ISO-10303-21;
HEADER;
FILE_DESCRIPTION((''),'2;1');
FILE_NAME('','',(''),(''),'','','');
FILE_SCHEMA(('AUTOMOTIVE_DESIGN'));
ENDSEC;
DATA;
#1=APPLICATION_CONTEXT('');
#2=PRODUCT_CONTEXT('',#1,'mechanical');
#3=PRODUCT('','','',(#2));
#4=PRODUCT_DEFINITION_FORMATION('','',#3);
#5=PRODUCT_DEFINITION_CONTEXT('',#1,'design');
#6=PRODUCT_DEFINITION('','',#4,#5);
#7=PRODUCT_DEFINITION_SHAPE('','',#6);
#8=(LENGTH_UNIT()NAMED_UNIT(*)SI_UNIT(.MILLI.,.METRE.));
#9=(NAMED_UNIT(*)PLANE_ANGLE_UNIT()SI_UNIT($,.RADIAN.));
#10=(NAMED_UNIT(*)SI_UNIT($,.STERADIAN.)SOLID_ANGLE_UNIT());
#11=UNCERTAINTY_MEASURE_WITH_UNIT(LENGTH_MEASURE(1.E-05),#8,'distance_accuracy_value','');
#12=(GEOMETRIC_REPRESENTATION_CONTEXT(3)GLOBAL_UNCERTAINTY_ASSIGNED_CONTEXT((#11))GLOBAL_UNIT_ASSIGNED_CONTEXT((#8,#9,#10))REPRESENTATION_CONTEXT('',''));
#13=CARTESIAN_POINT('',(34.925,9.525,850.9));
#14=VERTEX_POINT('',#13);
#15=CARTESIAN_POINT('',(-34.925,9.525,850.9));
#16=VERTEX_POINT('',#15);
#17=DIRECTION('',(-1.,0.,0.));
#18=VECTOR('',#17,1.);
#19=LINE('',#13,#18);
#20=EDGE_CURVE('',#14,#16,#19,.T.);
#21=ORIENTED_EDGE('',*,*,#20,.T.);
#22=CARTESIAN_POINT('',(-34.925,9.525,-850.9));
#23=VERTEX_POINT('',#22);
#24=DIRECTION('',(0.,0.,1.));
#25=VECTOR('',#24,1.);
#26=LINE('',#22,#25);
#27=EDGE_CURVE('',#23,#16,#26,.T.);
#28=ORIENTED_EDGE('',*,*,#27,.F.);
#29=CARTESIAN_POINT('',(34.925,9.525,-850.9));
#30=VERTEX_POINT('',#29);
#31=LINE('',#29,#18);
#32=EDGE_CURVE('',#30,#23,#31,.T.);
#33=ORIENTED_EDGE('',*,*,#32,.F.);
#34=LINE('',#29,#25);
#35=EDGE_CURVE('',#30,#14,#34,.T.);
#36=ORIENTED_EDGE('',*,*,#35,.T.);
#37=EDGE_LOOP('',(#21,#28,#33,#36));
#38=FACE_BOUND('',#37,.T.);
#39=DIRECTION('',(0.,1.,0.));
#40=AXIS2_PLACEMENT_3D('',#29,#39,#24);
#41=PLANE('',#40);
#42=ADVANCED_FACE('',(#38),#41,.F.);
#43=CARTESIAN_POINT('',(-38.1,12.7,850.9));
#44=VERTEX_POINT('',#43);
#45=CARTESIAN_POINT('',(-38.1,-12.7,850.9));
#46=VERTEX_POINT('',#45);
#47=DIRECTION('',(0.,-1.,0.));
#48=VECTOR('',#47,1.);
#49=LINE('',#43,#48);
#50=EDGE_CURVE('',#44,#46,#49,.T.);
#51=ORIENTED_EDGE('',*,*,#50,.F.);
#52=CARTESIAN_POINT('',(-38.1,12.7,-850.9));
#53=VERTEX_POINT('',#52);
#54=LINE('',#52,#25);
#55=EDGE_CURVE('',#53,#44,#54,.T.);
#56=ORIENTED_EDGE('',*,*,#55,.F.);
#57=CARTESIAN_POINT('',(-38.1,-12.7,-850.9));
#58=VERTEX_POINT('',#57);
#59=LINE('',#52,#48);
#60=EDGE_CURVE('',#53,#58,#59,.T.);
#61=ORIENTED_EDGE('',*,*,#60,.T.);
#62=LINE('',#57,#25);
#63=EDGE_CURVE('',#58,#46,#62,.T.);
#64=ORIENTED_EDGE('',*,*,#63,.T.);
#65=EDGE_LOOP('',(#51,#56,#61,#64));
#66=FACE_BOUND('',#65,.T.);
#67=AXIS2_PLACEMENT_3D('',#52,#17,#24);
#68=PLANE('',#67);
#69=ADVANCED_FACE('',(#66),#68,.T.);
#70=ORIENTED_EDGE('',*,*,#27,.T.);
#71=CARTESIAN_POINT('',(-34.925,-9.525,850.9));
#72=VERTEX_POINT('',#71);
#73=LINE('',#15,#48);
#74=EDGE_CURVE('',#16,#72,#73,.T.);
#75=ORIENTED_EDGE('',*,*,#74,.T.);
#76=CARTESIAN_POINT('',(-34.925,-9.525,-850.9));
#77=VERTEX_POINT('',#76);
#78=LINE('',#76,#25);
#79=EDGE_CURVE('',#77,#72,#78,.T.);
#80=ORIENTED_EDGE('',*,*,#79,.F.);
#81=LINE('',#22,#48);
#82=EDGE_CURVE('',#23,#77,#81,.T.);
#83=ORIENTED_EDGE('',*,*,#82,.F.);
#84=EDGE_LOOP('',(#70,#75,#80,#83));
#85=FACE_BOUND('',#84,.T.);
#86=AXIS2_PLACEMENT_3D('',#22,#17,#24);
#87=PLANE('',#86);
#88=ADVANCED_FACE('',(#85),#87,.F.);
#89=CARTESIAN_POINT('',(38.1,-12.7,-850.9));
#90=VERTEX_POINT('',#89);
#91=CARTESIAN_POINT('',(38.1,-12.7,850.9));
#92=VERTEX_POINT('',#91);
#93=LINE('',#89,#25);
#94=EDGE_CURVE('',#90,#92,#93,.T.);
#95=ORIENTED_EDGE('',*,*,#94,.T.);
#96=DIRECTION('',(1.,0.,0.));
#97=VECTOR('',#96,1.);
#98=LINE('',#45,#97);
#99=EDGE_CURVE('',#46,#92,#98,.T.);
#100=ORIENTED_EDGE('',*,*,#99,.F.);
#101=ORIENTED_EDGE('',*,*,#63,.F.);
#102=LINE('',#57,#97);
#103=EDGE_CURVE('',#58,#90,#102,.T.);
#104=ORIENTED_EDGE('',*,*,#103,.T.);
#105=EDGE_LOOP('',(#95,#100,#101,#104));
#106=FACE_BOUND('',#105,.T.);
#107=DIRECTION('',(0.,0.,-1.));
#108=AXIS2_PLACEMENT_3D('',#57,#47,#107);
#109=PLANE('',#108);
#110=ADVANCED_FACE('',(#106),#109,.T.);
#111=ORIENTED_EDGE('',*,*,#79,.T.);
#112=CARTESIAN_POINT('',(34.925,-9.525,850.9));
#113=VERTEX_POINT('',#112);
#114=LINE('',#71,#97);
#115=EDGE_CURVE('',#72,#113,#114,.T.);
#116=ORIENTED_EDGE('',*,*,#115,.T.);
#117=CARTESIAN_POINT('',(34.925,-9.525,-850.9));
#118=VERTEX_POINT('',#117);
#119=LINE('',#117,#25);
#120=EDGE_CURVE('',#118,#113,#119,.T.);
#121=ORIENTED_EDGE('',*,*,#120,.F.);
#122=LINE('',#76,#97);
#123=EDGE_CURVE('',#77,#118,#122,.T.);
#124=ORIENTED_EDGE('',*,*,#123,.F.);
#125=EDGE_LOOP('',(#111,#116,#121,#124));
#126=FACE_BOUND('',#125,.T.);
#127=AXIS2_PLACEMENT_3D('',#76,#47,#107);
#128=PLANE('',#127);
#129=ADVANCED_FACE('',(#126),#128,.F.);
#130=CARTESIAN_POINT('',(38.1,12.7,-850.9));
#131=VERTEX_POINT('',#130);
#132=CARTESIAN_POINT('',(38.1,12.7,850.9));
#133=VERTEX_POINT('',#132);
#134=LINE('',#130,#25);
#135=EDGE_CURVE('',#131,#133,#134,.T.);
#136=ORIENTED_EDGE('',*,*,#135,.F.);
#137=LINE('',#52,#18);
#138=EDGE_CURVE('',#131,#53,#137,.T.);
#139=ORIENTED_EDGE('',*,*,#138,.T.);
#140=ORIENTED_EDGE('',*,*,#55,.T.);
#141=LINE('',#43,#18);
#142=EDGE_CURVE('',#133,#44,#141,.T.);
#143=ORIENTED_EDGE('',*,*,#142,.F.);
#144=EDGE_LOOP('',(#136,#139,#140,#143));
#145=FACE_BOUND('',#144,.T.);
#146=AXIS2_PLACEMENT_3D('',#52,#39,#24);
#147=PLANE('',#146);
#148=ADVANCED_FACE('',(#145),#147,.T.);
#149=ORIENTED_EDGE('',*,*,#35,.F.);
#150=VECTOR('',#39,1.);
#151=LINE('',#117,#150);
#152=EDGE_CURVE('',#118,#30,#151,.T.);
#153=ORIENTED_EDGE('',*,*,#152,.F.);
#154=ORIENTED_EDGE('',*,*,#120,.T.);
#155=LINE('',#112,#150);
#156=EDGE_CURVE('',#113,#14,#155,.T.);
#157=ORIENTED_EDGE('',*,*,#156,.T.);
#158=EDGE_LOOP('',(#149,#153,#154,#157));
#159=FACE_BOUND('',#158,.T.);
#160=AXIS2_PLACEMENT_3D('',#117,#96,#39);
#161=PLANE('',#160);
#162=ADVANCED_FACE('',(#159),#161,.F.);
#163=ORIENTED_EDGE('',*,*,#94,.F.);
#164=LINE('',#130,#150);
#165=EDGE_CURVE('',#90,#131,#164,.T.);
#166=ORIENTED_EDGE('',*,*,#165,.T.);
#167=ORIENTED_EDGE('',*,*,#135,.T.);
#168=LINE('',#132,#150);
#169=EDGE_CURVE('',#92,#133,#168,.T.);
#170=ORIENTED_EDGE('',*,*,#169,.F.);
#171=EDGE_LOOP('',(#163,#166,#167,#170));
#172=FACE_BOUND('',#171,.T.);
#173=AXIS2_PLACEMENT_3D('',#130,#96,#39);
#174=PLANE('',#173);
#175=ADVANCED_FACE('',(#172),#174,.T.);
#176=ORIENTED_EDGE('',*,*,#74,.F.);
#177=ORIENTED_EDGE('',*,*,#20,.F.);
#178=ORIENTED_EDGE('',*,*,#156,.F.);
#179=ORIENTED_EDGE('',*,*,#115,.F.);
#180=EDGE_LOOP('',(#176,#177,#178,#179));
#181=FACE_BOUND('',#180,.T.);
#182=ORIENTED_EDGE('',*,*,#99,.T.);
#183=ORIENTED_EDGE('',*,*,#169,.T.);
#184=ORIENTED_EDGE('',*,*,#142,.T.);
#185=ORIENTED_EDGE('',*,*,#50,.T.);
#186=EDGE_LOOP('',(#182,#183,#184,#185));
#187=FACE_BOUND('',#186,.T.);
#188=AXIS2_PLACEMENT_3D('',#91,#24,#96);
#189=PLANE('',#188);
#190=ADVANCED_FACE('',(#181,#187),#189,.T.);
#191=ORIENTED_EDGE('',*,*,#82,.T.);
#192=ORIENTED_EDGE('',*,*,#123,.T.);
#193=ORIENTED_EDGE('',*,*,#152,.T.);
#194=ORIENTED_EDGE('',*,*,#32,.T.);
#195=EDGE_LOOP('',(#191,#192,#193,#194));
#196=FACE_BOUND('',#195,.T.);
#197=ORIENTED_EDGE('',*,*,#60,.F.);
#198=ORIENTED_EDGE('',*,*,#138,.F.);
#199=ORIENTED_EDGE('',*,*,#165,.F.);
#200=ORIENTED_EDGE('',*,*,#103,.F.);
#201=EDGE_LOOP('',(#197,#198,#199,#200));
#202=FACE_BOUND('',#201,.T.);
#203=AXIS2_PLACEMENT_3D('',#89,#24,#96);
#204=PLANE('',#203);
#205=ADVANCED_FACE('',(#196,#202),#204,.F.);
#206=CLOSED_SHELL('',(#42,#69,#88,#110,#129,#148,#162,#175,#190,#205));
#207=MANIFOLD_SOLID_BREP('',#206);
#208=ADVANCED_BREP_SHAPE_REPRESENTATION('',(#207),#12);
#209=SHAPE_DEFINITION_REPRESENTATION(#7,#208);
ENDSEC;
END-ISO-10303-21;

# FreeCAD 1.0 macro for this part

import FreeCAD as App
import Part
import Sketcher
from FreeCAD import Vector
Q = App.Units.Quantity


def add_polygon(sketch, points):
    """Adds a closed chain of lines whose ends are joined by coincident constraints."""
    first, n = sketch.GeometryCount, len(points)
    for a, b in zip(points, points[1:] + points[:1]):
        sketch.addGeometry(Part.LineSegment(App.Vector(*a, 0), App.Vector(*b, 0)), False)
    for i in range(n):
        sketch.addConstraint(Sketcher.Constraint("Coincident", first + i, 2, first + (i + 1) % n, 1))

doc = App.newDocument("Part")
body = doc.addObject("PartDesign::Body", "Body")

sketch1 = doc.addObject("Sketcher::SketchObject", "Sketch")
body.addObject(sketch1)
sketch1.AttachmentSupport = (doc.XY_Plane, [""])
sketch1.MapMode = "FlatFace"
add_polygon(sketch1, [(-38, 13), (-38, -13), (38, -13), (38, 13)])
sketch1.addConstraint(Sketcher.Constraint("Vertical", 0))
sketch1.addConstraint(Sketcher.Constraint("Horizontal", 1))
sketch1.addConstraint(Sketcher.Constraint("Vertical", 2))
sketch1.addConstraint(Sketcher.Constraint("Horizontal", 3))
sketch1.addConstraint(Sketcher.Constraint("Symmetric", 0, 2, 2, 2, -1, 1))
sketch1.addConstraint(Sketcher.Constraint("DistanceX", 1, 1, 1, 2, Q("3 in")))
sketch1.addConstraint(Sketcher.Constraint("DistanceY", 0, 2, 0, 1, Q("1 in")))
pad1 = doc.addObject("PartDesign::Pad", "Pad")
body.addObject(pad1)
pad1.Profile = sketch1
pad1.Length = Q("67 in")
pad1.Midplane = True

sketch2 = doc.addObject("Sketcher::SketchObject", "Sketch001")
body.addObject(sketch2)
sketch2.AttachmentSupport = (doc.XY_Plane, [""])
sketch2.MapMode = "FlatFace"
sketch2.AttachmentOffset = App.Placement(Vector(0, 0, 33.5 * 25.4), App.Rotation())
add_polygon(sketch2, [(-35, 10), (-35, -10), (35, -10), (35, 10)])
sketch2.addConstraint(Sketcher.Constraint("Vertical", 0))
sketch2.addConstraint(Sketcher.Constraint("Horizontal", 1))
sketch2.addConstraint(Sketcher.Constraint("Vertical", 2))
sketch2.addConstraint(Sketcher.Constraint("Horizontal", 3))
sketch2.addConstraint(Sketcher.Constraint("Symmetric", 0, 2, 2, 2, -1, 1))
sketch2.addConstraint(Sketcher.Constraint("DistanceX", 1, 1, 1, 2, Q("2.75 in")))
sketch2.addConstraint(Sketcher.Constraint("DistanceY", 0, 2, 0, 1, Q("0.75 in")))
pocket1 = doc.addObject("PartDesign::Pocket", "Pocket")
body.addObject(pocket1)
pocket1.Profile = sketch2
pocket1.Type = "ThroughAll"

doc.recompute()
